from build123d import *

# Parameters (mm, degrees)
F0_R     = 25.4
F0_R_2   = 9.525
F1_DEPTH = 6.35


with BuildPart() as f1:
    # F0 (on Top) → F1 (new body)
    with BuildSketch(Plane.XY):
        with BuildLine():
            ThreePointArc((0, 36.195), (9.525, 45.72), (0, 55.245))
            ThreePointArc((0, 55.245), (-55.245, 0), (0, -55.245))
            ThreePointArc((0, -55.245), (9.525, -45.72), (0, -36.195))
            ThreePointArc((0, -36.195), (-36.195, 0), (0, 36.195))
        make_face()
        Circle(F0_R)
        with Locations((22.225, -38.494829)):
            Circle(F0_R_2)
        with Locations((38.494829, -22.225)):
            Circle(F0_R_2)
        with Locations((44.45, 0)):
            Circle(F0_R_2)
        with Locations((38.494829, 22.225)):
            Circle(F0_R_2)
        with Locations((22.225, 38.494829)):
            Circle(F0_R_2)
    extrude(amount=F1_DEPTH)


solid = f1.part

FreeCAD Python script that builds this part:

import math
import FreeCAD as App
import Part
import Sketcher
from FreeCAD import Vector
Q = App.Units.Quantity

doc = App.newDocument("Part")
body = doc.addObject("PartDesign::Body", "Body")
body.AllowCompound = True

sketch1 = body.newObject("Sketcher::SketchObject", "Sketch")
sketch1.AttachmentSupport = (doc.getObject("XY_Plane"), [""])
sketch1.MapMode = "FlatFace"
sketch1.addGeometry(Part.ArcOfCircle(Part.Circle(Vector(0, 46, 0), Vector(0, 0, 1), 10), math.radians(-90), math.radians(90)), False)
sketch1.addGeometry(Part.ArcOfCircle(Part.Circle(Vector(0, 0, 0), Vector(0, 0, 1), 55), math.radians(90), math.radians(270)), False)
sketch1.addGeometry(Part.ArcOfCircle(Part.Circle(Vector(0, -46, 0), Vector(0, 0, 1), 10), math.radians(-90), math.radians(90)), False)
sketch1.addGeometry(Part.ArcOfCircle(Part.Circle(Vector(0, 0, 0), Vector(0, 0, 1), 36), math.radians(90), math.radians(270)), False)
sketch1.addGeometry(Part.Circle(Vector(0, 0, 0), Vector(0, 0, 1), 25), False)
sketch1.addGeometry(Part.Circle(Vector(22, -38, 0), Vector(0, 0, 1), 10), False)
sketch1.addGeometry(Part.Circle(Vector(38, -22, 0), Vector(0, 0, 1), 10), False)
sketch1.addGeometry(Part.Circle(Vector(44, 0, 0), Vector(0, 0, 1), 10), False)
sketch1.addGeometry(Part.Circle(Vector(38, 22, 0), Vector(0, 0, 1), 10), False)
sketch1.addGeometry(Part.Circle(Vector(22, 38, 0), Vector(0, 0, 1), 10), False)
sketch1.addConstraint(Sketcher.Constraint("Tangent", 0, 2, 1, 1))
sketch1.addConstraint(Sketcher.Constraint("Tangent", 1, 2, 2, 1))
sketch1.addConstraint(Sketcher.Constraint("Tangent", 2, 2, 3, 2))
sketch1.addConstraint(Sketcher.Constraint("Tangent", 3, 1, 0, 1))
sketch1.addConstraint(Sketcher.Constraint("Coincident", 1, 3, -1, 1))
sketch1.addConstraint(Sketcher.Constraint("Coincident", 3, 3, -1, 1))
sketch1.addConstraint(Sketcher.Constraint("Coincident", 4, 3, -1, 1))
sketch1.addConstraint(Sketcher.Constraint("Equal", 2, 5))
sketch1.addConstraint(Sketcher.Constraint("Equal", 5, 6))
sketch1.addConstraint(Sketcher.Constraint("Equal", 6, 7))
sketch1.addConstraint(Sketcher.Constraint("Equal", 7, 8))
sketch1.addConstraint(Sketcher.Constraint("Equal", 8, 9))
sketch1.addConstraint(Sketcher.Constraint("Symmetric", 6, 3, 8, 3, -1))
sketch1.addConstraint(Sketcher.Constraint("Symmetric", 5, 3, 9, 3, -1))
sketch1.addConstraint(Sketcher.Constraint("PointOnObject", 0, 3, -2))
sketch1.addConstraint(Sketcher.Constraint("PointOnObject", 2, 3, -2))
sketch1.addConstraint(Sketcher.Constraint("PointOnObject", 7, 3, -1))
sketch1.addConstraint(Sketcher.Constraint("Diameter", 4, Q("2 in")))
sketch1.addConstraint(Sketcher.Constraint("Diameter", 5, Q("0.75 in")))
sketch1.addConstraint(Sketcher.Constraint("Radius", 1, Q("2.175 in")))
sketch1.addConstraint(Sketcher.Constraint("DistanceY", 8, 3, 0, 2, Q("1.3 in")))
sketch1.addConstraint(Sketcher.Constraint("DistanceX", -1, 1, 7, 3, Q("1.75 in")))
sketch1.addConstraint(Sketcher.Constraint("DistanceX", -1, 1, 5, 3, Q("0.875 in")))
sketch1.addConstraint(Sketcher.Constraint("DistanceY", 5, 3, -1, 1, Q("38.494829 mm")))
sketch1.addConstraint(Sketcher.Constraint("DistanceX", -1, 1, 6, 3, Q("38.494829 mm")))
pad1 = body.newObject("PartDesign::Pad", "Pad")
pad1.Profile = sketch1
pad1.Length = Q("0.25 in")

doc.recompute()
